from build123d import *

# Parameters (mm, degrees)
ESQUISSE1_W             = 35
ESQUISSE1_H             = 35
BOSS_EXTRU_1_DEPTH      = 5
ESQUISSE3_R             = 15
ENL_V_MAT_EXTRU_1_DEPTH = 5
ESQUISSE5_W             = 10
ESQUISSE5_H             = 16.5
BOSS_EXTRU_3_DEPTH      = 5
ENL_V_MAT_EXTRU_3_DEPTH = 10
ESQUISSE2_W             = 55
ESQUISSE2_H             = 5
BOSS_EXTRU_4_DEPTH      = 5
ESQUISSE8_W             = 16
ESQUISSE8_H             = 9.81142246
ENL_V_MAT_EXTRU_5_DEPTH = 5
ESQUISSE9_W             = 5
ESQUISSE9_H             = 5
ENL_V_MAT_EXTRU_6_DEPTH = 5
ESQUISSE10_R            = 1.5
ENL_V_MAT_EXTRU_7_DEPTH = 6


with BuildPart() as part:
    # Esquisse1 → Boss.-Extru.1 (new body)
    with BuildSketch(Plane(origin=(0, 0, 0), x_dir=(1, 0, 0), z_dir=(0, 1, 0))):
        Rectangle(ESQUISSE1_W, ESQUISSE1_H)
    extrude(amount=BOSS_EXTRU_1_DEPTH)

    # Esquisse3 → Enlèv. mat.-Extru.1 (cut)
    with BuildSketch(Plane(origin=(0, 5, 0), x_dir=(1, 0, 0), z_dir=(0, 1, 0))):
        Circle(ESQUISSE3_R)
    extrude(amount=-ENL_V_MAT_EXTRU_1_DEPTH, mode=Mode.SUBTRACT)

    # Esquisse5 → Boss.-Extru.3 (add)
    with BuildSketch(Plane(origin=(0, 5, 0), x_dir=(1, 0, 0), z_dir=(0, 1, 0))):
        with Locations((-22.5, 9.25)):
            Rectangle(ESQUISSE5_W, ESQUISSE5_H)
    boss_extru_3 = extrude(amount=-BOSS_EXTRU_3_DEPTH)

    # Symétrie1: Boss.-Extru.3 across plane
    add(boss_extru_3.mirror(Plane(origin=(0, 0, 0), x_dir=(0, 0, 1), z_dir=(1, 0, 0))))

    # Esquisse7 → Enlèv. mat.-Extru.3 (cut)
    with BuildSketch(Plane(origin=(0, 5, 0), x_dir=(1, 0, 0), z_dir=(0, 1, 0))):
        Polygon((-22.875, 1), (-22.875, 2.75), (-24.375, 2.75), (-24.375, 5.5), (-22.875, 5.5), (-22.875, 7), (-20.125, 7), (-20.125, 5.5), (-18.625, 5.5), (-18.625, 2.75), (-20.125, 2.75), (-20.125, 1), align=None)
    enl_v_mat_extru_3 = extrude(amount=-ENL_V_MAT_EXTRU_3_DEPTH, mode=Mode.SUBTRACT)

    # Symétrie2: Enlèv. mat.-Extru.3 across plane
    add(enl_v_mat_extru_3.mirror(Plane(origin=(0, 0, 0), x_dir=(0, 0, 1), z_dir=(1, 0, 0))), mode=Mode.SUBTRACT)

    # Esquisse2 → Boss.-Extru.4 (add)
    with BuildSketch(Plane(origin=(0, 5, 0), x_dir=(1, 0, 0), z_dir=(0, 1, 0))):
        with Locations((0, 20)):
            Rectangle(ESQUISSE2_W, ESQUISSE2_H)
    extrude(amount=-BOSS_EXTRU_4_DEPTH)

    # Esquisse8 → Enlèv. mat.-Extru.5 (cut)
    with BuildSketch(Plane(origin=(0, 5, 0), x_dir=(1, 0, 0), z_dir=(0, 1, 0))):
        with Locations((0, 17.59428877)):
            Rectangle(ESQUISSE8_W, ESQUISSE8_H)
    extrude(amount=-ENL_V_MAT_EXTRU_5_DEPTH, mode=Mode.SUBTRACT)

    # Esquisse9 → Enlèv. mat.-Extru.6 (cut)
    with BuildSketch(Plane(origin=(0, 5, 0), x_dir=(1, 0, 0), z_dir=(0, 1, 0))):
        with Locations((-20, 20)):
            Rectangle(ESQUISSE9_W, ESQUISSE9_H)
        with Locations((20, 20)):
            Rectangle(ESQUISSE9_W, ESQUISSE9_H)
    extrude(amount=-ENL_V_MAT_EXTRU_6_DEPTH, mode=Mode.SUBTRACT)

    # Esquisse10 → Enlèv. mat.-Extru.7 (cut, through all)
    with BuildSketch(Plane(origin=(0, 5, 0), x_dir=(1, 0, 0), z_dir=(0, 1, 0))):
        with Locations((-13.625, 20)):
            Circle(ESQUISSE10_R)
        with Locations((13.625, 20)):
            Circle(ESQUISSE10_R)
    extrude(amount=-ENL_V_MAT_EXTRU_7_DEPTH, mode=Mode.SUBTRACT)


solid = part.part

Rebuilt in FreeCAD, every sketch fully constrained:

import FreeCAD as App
import Part
import Sketcher
from FreeCAD import Vector

doc = App.newDocument("Part")
params = doc.addObject("Spreadsheet::Sheet", "Params")
for row, (alias, value) in enumerate([
    ("sketch1_width", "35 mm"),
    ("pad1_length", "5 mm"),
    ("sketch2_diameter", "30 mm"),
    ("pocket1_length", "5 mm"),
    ("sketch3_width", "10 mm"),
    ("sketch3_height", "16.5 mm"),
    ("pad2_length", "5 mm"),
    ("sketch4_width", "1.5 mm"),
    ("sketch4_width2", "2.75 mm"),
    ("pocket2_length", "10 mm"),
    ("sketch5_width", "55 mm"),
    ("sketch5_height", "5 mm"),
    ("pad3_length", "5 mm"),
    ("sketch6_width", "16 mm"),
    ("pocket3_length", "5 mm"),
    ("sketch7_width", "5 mm"),
    ("pocket4_length", "5 mm"),
    ("sketch8_diameter", "3 mm"),
], start=1):
    params.set(f"A{row}", alias)
    params.set(f"B{row}", "=" + value)
    params.setAlias(f"B{row}", alias)

body = doc.addObject("PartDesign::Body", "Body")

# Sketch on XZ plane
sketch1 = body.newObject("Sketcher::SketchObject", "Sketch")
sketch1.AttachmentSupport = (doc.getObject("XZ_Plane"), [""])
sketch1.MapMode = "FlatFace"
sketch1.addGeometry([
    Part.LineSegment(Vector(-17.5, -17.5, 0), Vector(-17.5, 17.5, 0)),
    Part.LineSegment(Vector(-17.5, 17.5, 0), Vector(17.5, 17.5, 0)),
    Part.LineSegment(Vector(17.5, 17.5, 0), Vector(17.5, -17.5, 0)),
    Part.LineSegment(Vector(17.5, -17.5, 0), Vector(-17.5, -17.5, 0)),
], False)
sketch1.addConstraint([
    Sketcher.Constraint("Coincident", 0, 2, 1, 1),
    Sketcher.Constraint("Coincident", 1, 2, 2, 1),
    Sketcher.Constraint("Coincident", 2, 2, 3, 1),
    Sketcher.Constraint("Coincident", 3, 2, 0, 1),
    Sketcher.Constraint("Vertical", 0),
    Sketcher.Constraint("Horizontal", 1),
    Sketcher.Constraint("Vertical", 2),
    Sketcher.Constraint("Horizontal", 3),
    Sketcher.Constraint("Symmetric", 0, 2, 2, 2, -1, 1),
    Sketcher.Constraint("Equal", 3, 0),
    Sketcher.Constraint("DistanceX", 1, 1, 1, 2, 35.0),
])
sketch1.setExpression("Constraints[10]", "Params.sketch1_width")
pad1 = body.newObject("PartDesign::Pad", "Pad")
pad1.Profile = sketch1
pad1.setExpression("Length", "Params.pad1_length")
pad1.Reversed = True

# Sketch on XZ plane
sketch2 = body.newObject("Sketcher::SketchObject", "Sketch001")
sketch2.AttachmentSupport = (doc.getObject("XZ_Plane"), [""])
sketch2.MapMode = "FlatFace"
sketch2.AttachmentOffset = App.Placement(Vector(0, 0, -5), App.Rotation())
sketch2.addGeometry(Part.Circle(Vector(0, 0, 0), Vector(0, 0, 1), 15), False)
sketch2.addConstraint([
    Sketcher.Constraint("Coincident", 0, 3, -1, 1),
    Sketcher.Constraint("Diameter", 0, 30.0),
])
sketch2.setExpression("Constraints[1]", "Params.sketch2_diameter")
pocket1 = body.newObject("PartDesign::Pocket", "Pocket")
pocket1.Profile = sketch2
pocket1.setExpression("Length", "Params.pocket1_length")
pocket1.Reversed = True

# Sketch on XZ plane
sketch3 = body.newObject("Sketcher::SketchObject", "Sketch002")
sketch3.AttachmentSupport = (doc.getObject("XZ_Plane"), [""])
sketch3.MapMode = "FlatFace"
sketch3.AttachmentOffset = App.Placement(Vector(0, 0, -5), App.Rotation())
sketch3.addGeometry([
    Part.LineSegment(Vector(-27.5, -17.5, 0), Vector(-27.5, -1, 0)),
    Part.LineSegment(Vector(-27.5, -1, 0), Vector(-17.5, -1, 0)),
    Part.LineSegment(Vector(-17.5, -1, 0), Vector(-17.5, -17.5, 0)),
    Part.LineSegment(Vector(-17.5, -17.5, 0), Vector(-27.5, -17.5, 0)),
], False)
sketch3.addConstraint([
    Sketcher.Constraint("Coincident", 0, 2, 1, 1),
    Sketcher.Constraint("Coincident", 1, 2, 2, 1),
    Sketcher.Constraint("Coincident", 2, 2, 3, 1),
    Sketcher.Constraint("Coincident", 3, 2, 0, 1),
    Sketcher.Constraint("Vertical", 0),
    Sketcher.Constraint("Horizontal", 1),
    Sketcher.Constraint("Vertical", 2),
    Sketcher.Constraint("Horizontal", 3),
    Sketcher.Constraint("DistanceX", 1, 1, 1, 2, 10.0),
    Sketcher.Constraint("DistanceY", 0, 1, 0, 2, 16.5),
    Sketcher.Constraint("DistanceY", 0, 2, -1, 1, 1.0),
    Sketcher.Constraint("DistanceX", 0, 2, -1, 1, 27.5),
])
sketch3.setExpression("Constraints[8]", "Params.sketch3_width")
sketch3.setExpression("Constraints[9]", "Params.sketch3_height")
pad2 = body.newObject("PartDesign::Pad", "Pad001")
pad2.Profile = sketch3
pad2.setExpression("Length", "Params.pad2_length")
doc.recompute()

mirrored = body.newObject("PartDesign::Mirrored", "Mirrored")
mirrored.Originals = [pad2]
mirrored.MirrorPlane = (doc.getObject("YZ_Plane"), [""])
body.Tip = mirrored

# Sketch on XZ plane
sketch4 = body.newObject("Sketcher::SketchObject", "Sketch003")
sketch4.AttachmentSupport = (doc.getObject("XZ_Plane"), [""])
sketch4.MapMode = "FlatFace"
sketch4.AttachmentOffset = App.Placement(Vector(0, 0, -5), App.Rotation())
sketch4.addGeometry([
    Part.LineSegment(Vector(-22.875, -2.75, 0), Vector(-22.875, -1, 0)),  # 0
    Part.LineSegment(Vector(-22.875, -1, 0), Vector(-20.125, -1, 0)),  # 1
    Part.LineSegment(Vector(-20.125, -1, 0), Vector(-20.125, -2.75, 0)),  # 2
    Part.LineSegment(Vector(-20.125, -2.75, 0), Vector(-18.625, -2.75, 0)),  # 3
    Part.LineSegment(Vector(-18.625, -2.75, 0), Vector(-18.625, -5.5, 0)),  # 4
    Part.LineSegment(Vector(-18.625, -5.5, 0), Vector(-20.125, -5.5, 0)),  # 5
    Part.LineSegment(Vector(-20.125, -5.5, 0), Vector(-20.125, -7, 0)),  # 6
    Part.LineSegment(Vector(-20.125, -7, 0), Vector(-22.875, -7, 0)),  # 7
    Part.LineSegment(Vector(-22.875, -7, 0), Vector(-22.875, -5.5, 0)),  # 8
    Part.LineSegment(Vector(-22.875, -5.5, 0), Vector(-24.375, -5.5, 0)),  # 9
    Part.LineSegment(Vector(-24.375, -5.5, 0), Vector(-24.375, -2.75, 0)),  # 10
    Part.LineSegment(Vector(-24.375, -2.75, 0), Vector(-22.875, -2.75, 0)),  # 11
], False)
sketch4.addConstraint([
    Sketcher.Constraint("Coincident", 0, 2, 1, 1),
    Sketcher.Constraint("Coincident", 1, 2, 2, 1),
    Sketcher.Constraint("Coincident", 2, 2, 3, 1),
    Sketcher.Constraint("Coincident", 3, 2, 4, 1),
    Sketcher.Constraint("Coincident", 4, 2, 5, 1),
    Sketcher.Constraint("Coincident", 5, 2, 6, 1),
    Sketcher.Constraint("Coincident", 6, 2, 7, 1),
    Sketcher.Constraint("Coincident", 7, 2, 8, 1),
    Sketcher.Constraint("Coincident", 8, 2, 9, 1),
    Sketcher.Constraint("Coincident", 9, 2, 10, 1),
    Sketcher.Constraint("Coincident", 10, 2, 11, 1),
    Sketcher.Constraint("Coincident", 11, 2, 0, 1),
    Sketcher.Constraint("Vertical", 0),
    Sketcher.Constraint("Horizontal", 1),
    Sketcher.Constraint("Vertical", 2),
    Sketcher.Constraint("Horizontal", 3),
    Sketcher.Constraint("Vertical", 4),
    Sketcher.Constraint("Horizontal", 5),
    Sketcher.Constraint("Vertical", 6),
    Sketcher.Constraint("Horizontal", 7),
    Sketcher.Constraint("Vertical", 8),
    Sketcher.Constraint("Horizontal", 9),
    Sketcher.Constraint("Vertical", 10),
    Sketcher.Constraint("Horizontal", 11),
    Sketcher.Constraint("Horizontal", 5, 2, 8, 2),
    Sketcher.Constraint("Horizontal", 3, 2, 10, 2),
    Sketcher.Constraint("Vertical", 2, 2, 5, 2),
    Sketcher.Constraint("Vertical", 0, 2, 7, 2),
    Sketcher.Constraint("Equal", 5, 9),
    Sketcher.Constraint("Equal", 7, 4),
    Sketcher.Constraint("Equal", 11, 6),
    Sketcher.Constraint("DistanceX", 3, 1, 3, 2, 1.5),
    Sketcher.Constraint("DistanceY", 0, 2, -1, 1, 1.0),
    Sketcher.Constraint("DistanceY", 6, 2, -1, 1, 7.0),
    Sketcher.Constraint("DistanceX", 1, 1, 1, 2, 2.75),
    Sketcher.Constraint("DistanceX", 0, 2, -1, 1, 22.875),
])
sketch4.setExpression("Constraints[31]", "Params.sketch4_width")
sketch4.setExpression("Constraints[34]", "Params.sketch4_width2")
pocket2 = body.newObject("PartDesign::Pocket", "Pocket001")
pocket2.Profile = sketch4
pocket2.setExpression("Length", "Params.pocket2_length")
pocket2.Reversed = True
doc.recompute()

mirrored2 = body.newObject("PartDesign::Mirrored", "Mirrored001")
mirrored2.Originals = [pocket2]
mirrored2.MirrorPlane = (doc.getObject("YZ_Plane"), [""])
body.Tip = mirrored2

# Sketch on XZ plane
sketch5 = body.newObject("Sketcher::SketchObject", "Sketch004")
sketch5.AttachmentSupport = (doc.getObject("XZ_Plane"), [""])
sketch5.MapMode = "FlatFace"
sketch5.AttachmentOffset = App.Placement(Vector(0, 0, -5), App.Rotation())
sketch5.addGeometry([
    Part.LineSegment(Vector(-27.5, -22.5, 0), Vector(-27.5, -17.5, 0)),
    Part.LineSegment(Vector(-27.5, -17.5, 0), Vector(27.5, -17.5, 0)),
    Part.LineSegment(Vector(27.5, -17.5, 0), Vector(27.5, -22.5, 0)),
    Part.LineSegment(Vector(27.5, -22.5, 0), Vector(-27.5, -22.5, 0)),
], False)
sketch5.addConstraint([
    Sketcher.Constraint("Coincident", 0, 2, 1, 1),
    Sketcher.Constraint("Coincident", 1, 2, 2, 1),
    Sketcher.Constraint("Coincident", 2, 2, 3, 1),
    Sketcher.Constraint("Coincident", 3, 2, 0, 1),
    Sketcher.Constraint("Vertical", 0),
    Sketcher.Constraint("Horizontal", 1),
    Sketcher.Constraint("Vertical", 2),
    Sketcher.Constraint("Horizontal", 3),
    Sketcher.Constraint("DistanceX", 1, 1, 1, 2, 55.0),
    Sketcher.Constraint("DistanceY", 0, 1, 0, 2, 5.0),
    Sketcher.Constraint("DistanceX", 0, 2, -1, 1, 27.5),
    Sketcher.Constraint("DistanceY", 0, 2, -1, 1, 17.5),
])
sketch5.setExpression("Constraints[8]", "Params.sketch5_width")
sketch5.setExpression("Constraints[9]", "Params.sketch5_height")
pad3 = body.newObject("PartDesign::Pad", "Pad002")
pad3.Profile = sketch5
pad3.setExpression("Length", "Params.pad3_length")

# Sketch on XZ plane
sketch6 = body.newObject("Sketcher::SketchObject", "Sketch005")
sketch6.AttachmentSupport = (doc.getObject("XZ_Plane"), [""])
sketch6.MapMode = "FlatFace"
sketch6.AttachmentOffset = App.Placement(Vector(0, 0, -5), App.Rotation())
sketch6.addGeometry([
    Part.LineSegment(Vector(-8, -22.5, 0), Vector(-8, -12.688578, 0)),
    Part.LineSegment(Vector(-8, -12.688578, 0), Vector(8, -12.688578, 0)),
    Part.LineSegment(Vector(8, -12.688578, 0), Vector(8, -22.5, 0)),
    Part.LineSegment(Vector(8, -22.5, 0), Vector(-8, -22.5, 0)),
], False)
sketch6.addConstraint([
    Sketcher.Constraint("Coincident", 0, 2, 1, 1),
    Sketcher.Constraint("Coincident", 1, 2, 2, 1),
    Sketcher.Constraint("Coincident", 2, 2, 3, 1),
    Sketcher.Constraint("Coincident", 3, 2, 0, 1),
    Sketcher.Constraint("Vertical", 0),
    Sketcher.Constraint("Horizontal", 1),
    Sketcher.Constraint("Vertical", 2),
    Sketcher.Constraint("Horizontal", 3),
    Sketcher.Constraint("DistanceX", 1, 1, 1, 2, 16.0),
    Sketcher.Constraint("DistanceX", 0, 2, -1, 1, 8.0),
    Sketcher.Constraint("DistanceY", 2, 2, -1, 1, 22.5),
    Sketcher.Constraint("DistanceY", 0, 1, 0, 2, 9.811422),
])
sketch6.setExpression("Constraints[8]", "Params.sketch6_width")
pocket3 = body.newObject("PartDesign::Pocket", "Pocket002")
pocket3.Profile = sketch6
pocket3.setExpression("Length", "Params.pocket3_length")
pocket3.Reversed = True

# Sketch on XZ plane
sketch7 = body.newObject("Sketcher::SketchObject", "Sketch006")
sketch7.AttachmentSupport = (doc.getObject("XZ_Plane"), [""])
sketch7.MapMode = "FlatFace"
sketch7.AttachmentOffset = App.Placement(Vector(0, 0, -5), App.Rotation())
sketch7.addGeometry([
    Part.LineSegment(Vector(-22.5, -22.5, 0), Vector(-22.5, -17.5, 0)),  # 0
    Part.LineSegment(Vector(-22.5, -17.5, 0), Vector(-17.5, -17.5, 0)),  # 1
    Part.LineSegment(Vector(-17.5, -17.5, 0), Vector(-17.5, -22.5, 0)),  # 2
    Part.LineSegment(Vector(-17.5, -22.5, 0), Vector(-22.5, -22.5, 0)),  # 3
    Part.LineSegment(Vector(17.5, -22.5, 0), Vector(17.5, -17.5, 0)),  # 4
    Part.LineSegment(Vector(17.5, -17.5, 0), Vector(22.5, -17.5, 0)),  # 5
    Part.LineSegment(Vector(22.5, -17.5, 0), Vector(22.5, -22.5, 0)),  # 6
    Part.LineSegment(Vector(22.5, -22.5, 0), Vector(17.5, -22.5, 0)),  # 7
], False)
sketch7.addConstraint([
    Sketcher.Constraint("Coincident", 0, 2, 1, 1),
    Sketcher.Constraint("Coincident", 1, 2, 2, 1),
    Sketcher.Constraint("Coincident", 2, 2, 3, 1),
    Sketcher.Constraint("Coincident", 3, 2, 0, 1),
    Sketcher.Constraint("Coincident", 4, 2, 5, 1),
    Sketcher.Constraint("Coincident", 5, 2, 6, 1),
    Sketcher.Constraint("Coincident", 6, 2, 7, 1),
    Sketcher.Constraint("Coincident", 7, 2, 4, 1),
    Sketcher.Constraint("Vertical", 0),
    Sketcher.Constraint("Horizontal", 1),
    Sketcher.Constraint("Vertical", 2),
    Sketcher.Constraint("Horizontal", 3),
    Sketcher.Constraint("Vertical", 4),
    Sketcher.Constraint("Horizontal", 5),
    Sketcher.Constraint("Vertical", 6),
    Sketcher.Constraint("Horizontal", 7),
    Sketcher.Constraint("Symmetric", 1, 2, 4, 2, -2),
    Sketcher.Constraint("Symmetric", 3, 2, 6, 2, -2),
    Sketcher.Constraint("Equal", 7, 0),
    Sketcher.Constraint("DistanceX", 1, 1, 1, 2, 5.0),
    Sketcher.Constraint("DistanceX", 1, 2, 4, 2, 35.0),
    Sketcher.Constraint("DistanceY", 0, 2, -1, 1, 17.5),
])
sketch7.setExpression("Constraints[19]", "Params.sketch7_width")
pocket4 = body.newObject("PartDesign::Pocket", "Pocket003")
pocket4.Profile = sketch7
pocket4.setExpression("Length", "Params.pocket4_length")
pocket4.Reversed = True

# Sketch on XZ plane
sketch8 = body.newObject("Sketcher::SketchObject", "Sketch007")
sketch8.AttachmentSupport = (doc.getObject("XZ_Plane"), [""])
sketch8.MapMode = "FlatFace"
sketch8.AttachmentOffset = App.Placement(Vector(0, 0, -5), App.Rotation())
sketch8.addGeometry([
    Part.Circle(Vector(-13.625, -20, 0), Vector(0, 0, 1), 1.5),
    Part.Circle(Vector(13.625, -20, 0), Vector(0, 0, 1), 1.5),
], False)
sketch8.addConstraint([
    Sketcher.Constraint("Equal", 0, 1),
    Sketcher.Constraint("Symmetric", 0, 3, 1, 3, -2),
    Sketcher.Constraint("Diameter", 0, 3.0),
    Sketcher.Constraint("DistanceY", 0, 3, -1, 1, 20.0),
    Sketcher.Constraint("DistanceX", 0, 3, 1, 3, 27.25),
])
sketch8.setExpression("Constraints[2]", "Params.sketch8_diameter")
pocket5 = body.newObject("PartDesign::Pocket", "Pocket004")
pocket5.Profile = sketch8
pocket5.Type = "ThroughAll"
pocket5.Reversed = True

doc.recompute()
